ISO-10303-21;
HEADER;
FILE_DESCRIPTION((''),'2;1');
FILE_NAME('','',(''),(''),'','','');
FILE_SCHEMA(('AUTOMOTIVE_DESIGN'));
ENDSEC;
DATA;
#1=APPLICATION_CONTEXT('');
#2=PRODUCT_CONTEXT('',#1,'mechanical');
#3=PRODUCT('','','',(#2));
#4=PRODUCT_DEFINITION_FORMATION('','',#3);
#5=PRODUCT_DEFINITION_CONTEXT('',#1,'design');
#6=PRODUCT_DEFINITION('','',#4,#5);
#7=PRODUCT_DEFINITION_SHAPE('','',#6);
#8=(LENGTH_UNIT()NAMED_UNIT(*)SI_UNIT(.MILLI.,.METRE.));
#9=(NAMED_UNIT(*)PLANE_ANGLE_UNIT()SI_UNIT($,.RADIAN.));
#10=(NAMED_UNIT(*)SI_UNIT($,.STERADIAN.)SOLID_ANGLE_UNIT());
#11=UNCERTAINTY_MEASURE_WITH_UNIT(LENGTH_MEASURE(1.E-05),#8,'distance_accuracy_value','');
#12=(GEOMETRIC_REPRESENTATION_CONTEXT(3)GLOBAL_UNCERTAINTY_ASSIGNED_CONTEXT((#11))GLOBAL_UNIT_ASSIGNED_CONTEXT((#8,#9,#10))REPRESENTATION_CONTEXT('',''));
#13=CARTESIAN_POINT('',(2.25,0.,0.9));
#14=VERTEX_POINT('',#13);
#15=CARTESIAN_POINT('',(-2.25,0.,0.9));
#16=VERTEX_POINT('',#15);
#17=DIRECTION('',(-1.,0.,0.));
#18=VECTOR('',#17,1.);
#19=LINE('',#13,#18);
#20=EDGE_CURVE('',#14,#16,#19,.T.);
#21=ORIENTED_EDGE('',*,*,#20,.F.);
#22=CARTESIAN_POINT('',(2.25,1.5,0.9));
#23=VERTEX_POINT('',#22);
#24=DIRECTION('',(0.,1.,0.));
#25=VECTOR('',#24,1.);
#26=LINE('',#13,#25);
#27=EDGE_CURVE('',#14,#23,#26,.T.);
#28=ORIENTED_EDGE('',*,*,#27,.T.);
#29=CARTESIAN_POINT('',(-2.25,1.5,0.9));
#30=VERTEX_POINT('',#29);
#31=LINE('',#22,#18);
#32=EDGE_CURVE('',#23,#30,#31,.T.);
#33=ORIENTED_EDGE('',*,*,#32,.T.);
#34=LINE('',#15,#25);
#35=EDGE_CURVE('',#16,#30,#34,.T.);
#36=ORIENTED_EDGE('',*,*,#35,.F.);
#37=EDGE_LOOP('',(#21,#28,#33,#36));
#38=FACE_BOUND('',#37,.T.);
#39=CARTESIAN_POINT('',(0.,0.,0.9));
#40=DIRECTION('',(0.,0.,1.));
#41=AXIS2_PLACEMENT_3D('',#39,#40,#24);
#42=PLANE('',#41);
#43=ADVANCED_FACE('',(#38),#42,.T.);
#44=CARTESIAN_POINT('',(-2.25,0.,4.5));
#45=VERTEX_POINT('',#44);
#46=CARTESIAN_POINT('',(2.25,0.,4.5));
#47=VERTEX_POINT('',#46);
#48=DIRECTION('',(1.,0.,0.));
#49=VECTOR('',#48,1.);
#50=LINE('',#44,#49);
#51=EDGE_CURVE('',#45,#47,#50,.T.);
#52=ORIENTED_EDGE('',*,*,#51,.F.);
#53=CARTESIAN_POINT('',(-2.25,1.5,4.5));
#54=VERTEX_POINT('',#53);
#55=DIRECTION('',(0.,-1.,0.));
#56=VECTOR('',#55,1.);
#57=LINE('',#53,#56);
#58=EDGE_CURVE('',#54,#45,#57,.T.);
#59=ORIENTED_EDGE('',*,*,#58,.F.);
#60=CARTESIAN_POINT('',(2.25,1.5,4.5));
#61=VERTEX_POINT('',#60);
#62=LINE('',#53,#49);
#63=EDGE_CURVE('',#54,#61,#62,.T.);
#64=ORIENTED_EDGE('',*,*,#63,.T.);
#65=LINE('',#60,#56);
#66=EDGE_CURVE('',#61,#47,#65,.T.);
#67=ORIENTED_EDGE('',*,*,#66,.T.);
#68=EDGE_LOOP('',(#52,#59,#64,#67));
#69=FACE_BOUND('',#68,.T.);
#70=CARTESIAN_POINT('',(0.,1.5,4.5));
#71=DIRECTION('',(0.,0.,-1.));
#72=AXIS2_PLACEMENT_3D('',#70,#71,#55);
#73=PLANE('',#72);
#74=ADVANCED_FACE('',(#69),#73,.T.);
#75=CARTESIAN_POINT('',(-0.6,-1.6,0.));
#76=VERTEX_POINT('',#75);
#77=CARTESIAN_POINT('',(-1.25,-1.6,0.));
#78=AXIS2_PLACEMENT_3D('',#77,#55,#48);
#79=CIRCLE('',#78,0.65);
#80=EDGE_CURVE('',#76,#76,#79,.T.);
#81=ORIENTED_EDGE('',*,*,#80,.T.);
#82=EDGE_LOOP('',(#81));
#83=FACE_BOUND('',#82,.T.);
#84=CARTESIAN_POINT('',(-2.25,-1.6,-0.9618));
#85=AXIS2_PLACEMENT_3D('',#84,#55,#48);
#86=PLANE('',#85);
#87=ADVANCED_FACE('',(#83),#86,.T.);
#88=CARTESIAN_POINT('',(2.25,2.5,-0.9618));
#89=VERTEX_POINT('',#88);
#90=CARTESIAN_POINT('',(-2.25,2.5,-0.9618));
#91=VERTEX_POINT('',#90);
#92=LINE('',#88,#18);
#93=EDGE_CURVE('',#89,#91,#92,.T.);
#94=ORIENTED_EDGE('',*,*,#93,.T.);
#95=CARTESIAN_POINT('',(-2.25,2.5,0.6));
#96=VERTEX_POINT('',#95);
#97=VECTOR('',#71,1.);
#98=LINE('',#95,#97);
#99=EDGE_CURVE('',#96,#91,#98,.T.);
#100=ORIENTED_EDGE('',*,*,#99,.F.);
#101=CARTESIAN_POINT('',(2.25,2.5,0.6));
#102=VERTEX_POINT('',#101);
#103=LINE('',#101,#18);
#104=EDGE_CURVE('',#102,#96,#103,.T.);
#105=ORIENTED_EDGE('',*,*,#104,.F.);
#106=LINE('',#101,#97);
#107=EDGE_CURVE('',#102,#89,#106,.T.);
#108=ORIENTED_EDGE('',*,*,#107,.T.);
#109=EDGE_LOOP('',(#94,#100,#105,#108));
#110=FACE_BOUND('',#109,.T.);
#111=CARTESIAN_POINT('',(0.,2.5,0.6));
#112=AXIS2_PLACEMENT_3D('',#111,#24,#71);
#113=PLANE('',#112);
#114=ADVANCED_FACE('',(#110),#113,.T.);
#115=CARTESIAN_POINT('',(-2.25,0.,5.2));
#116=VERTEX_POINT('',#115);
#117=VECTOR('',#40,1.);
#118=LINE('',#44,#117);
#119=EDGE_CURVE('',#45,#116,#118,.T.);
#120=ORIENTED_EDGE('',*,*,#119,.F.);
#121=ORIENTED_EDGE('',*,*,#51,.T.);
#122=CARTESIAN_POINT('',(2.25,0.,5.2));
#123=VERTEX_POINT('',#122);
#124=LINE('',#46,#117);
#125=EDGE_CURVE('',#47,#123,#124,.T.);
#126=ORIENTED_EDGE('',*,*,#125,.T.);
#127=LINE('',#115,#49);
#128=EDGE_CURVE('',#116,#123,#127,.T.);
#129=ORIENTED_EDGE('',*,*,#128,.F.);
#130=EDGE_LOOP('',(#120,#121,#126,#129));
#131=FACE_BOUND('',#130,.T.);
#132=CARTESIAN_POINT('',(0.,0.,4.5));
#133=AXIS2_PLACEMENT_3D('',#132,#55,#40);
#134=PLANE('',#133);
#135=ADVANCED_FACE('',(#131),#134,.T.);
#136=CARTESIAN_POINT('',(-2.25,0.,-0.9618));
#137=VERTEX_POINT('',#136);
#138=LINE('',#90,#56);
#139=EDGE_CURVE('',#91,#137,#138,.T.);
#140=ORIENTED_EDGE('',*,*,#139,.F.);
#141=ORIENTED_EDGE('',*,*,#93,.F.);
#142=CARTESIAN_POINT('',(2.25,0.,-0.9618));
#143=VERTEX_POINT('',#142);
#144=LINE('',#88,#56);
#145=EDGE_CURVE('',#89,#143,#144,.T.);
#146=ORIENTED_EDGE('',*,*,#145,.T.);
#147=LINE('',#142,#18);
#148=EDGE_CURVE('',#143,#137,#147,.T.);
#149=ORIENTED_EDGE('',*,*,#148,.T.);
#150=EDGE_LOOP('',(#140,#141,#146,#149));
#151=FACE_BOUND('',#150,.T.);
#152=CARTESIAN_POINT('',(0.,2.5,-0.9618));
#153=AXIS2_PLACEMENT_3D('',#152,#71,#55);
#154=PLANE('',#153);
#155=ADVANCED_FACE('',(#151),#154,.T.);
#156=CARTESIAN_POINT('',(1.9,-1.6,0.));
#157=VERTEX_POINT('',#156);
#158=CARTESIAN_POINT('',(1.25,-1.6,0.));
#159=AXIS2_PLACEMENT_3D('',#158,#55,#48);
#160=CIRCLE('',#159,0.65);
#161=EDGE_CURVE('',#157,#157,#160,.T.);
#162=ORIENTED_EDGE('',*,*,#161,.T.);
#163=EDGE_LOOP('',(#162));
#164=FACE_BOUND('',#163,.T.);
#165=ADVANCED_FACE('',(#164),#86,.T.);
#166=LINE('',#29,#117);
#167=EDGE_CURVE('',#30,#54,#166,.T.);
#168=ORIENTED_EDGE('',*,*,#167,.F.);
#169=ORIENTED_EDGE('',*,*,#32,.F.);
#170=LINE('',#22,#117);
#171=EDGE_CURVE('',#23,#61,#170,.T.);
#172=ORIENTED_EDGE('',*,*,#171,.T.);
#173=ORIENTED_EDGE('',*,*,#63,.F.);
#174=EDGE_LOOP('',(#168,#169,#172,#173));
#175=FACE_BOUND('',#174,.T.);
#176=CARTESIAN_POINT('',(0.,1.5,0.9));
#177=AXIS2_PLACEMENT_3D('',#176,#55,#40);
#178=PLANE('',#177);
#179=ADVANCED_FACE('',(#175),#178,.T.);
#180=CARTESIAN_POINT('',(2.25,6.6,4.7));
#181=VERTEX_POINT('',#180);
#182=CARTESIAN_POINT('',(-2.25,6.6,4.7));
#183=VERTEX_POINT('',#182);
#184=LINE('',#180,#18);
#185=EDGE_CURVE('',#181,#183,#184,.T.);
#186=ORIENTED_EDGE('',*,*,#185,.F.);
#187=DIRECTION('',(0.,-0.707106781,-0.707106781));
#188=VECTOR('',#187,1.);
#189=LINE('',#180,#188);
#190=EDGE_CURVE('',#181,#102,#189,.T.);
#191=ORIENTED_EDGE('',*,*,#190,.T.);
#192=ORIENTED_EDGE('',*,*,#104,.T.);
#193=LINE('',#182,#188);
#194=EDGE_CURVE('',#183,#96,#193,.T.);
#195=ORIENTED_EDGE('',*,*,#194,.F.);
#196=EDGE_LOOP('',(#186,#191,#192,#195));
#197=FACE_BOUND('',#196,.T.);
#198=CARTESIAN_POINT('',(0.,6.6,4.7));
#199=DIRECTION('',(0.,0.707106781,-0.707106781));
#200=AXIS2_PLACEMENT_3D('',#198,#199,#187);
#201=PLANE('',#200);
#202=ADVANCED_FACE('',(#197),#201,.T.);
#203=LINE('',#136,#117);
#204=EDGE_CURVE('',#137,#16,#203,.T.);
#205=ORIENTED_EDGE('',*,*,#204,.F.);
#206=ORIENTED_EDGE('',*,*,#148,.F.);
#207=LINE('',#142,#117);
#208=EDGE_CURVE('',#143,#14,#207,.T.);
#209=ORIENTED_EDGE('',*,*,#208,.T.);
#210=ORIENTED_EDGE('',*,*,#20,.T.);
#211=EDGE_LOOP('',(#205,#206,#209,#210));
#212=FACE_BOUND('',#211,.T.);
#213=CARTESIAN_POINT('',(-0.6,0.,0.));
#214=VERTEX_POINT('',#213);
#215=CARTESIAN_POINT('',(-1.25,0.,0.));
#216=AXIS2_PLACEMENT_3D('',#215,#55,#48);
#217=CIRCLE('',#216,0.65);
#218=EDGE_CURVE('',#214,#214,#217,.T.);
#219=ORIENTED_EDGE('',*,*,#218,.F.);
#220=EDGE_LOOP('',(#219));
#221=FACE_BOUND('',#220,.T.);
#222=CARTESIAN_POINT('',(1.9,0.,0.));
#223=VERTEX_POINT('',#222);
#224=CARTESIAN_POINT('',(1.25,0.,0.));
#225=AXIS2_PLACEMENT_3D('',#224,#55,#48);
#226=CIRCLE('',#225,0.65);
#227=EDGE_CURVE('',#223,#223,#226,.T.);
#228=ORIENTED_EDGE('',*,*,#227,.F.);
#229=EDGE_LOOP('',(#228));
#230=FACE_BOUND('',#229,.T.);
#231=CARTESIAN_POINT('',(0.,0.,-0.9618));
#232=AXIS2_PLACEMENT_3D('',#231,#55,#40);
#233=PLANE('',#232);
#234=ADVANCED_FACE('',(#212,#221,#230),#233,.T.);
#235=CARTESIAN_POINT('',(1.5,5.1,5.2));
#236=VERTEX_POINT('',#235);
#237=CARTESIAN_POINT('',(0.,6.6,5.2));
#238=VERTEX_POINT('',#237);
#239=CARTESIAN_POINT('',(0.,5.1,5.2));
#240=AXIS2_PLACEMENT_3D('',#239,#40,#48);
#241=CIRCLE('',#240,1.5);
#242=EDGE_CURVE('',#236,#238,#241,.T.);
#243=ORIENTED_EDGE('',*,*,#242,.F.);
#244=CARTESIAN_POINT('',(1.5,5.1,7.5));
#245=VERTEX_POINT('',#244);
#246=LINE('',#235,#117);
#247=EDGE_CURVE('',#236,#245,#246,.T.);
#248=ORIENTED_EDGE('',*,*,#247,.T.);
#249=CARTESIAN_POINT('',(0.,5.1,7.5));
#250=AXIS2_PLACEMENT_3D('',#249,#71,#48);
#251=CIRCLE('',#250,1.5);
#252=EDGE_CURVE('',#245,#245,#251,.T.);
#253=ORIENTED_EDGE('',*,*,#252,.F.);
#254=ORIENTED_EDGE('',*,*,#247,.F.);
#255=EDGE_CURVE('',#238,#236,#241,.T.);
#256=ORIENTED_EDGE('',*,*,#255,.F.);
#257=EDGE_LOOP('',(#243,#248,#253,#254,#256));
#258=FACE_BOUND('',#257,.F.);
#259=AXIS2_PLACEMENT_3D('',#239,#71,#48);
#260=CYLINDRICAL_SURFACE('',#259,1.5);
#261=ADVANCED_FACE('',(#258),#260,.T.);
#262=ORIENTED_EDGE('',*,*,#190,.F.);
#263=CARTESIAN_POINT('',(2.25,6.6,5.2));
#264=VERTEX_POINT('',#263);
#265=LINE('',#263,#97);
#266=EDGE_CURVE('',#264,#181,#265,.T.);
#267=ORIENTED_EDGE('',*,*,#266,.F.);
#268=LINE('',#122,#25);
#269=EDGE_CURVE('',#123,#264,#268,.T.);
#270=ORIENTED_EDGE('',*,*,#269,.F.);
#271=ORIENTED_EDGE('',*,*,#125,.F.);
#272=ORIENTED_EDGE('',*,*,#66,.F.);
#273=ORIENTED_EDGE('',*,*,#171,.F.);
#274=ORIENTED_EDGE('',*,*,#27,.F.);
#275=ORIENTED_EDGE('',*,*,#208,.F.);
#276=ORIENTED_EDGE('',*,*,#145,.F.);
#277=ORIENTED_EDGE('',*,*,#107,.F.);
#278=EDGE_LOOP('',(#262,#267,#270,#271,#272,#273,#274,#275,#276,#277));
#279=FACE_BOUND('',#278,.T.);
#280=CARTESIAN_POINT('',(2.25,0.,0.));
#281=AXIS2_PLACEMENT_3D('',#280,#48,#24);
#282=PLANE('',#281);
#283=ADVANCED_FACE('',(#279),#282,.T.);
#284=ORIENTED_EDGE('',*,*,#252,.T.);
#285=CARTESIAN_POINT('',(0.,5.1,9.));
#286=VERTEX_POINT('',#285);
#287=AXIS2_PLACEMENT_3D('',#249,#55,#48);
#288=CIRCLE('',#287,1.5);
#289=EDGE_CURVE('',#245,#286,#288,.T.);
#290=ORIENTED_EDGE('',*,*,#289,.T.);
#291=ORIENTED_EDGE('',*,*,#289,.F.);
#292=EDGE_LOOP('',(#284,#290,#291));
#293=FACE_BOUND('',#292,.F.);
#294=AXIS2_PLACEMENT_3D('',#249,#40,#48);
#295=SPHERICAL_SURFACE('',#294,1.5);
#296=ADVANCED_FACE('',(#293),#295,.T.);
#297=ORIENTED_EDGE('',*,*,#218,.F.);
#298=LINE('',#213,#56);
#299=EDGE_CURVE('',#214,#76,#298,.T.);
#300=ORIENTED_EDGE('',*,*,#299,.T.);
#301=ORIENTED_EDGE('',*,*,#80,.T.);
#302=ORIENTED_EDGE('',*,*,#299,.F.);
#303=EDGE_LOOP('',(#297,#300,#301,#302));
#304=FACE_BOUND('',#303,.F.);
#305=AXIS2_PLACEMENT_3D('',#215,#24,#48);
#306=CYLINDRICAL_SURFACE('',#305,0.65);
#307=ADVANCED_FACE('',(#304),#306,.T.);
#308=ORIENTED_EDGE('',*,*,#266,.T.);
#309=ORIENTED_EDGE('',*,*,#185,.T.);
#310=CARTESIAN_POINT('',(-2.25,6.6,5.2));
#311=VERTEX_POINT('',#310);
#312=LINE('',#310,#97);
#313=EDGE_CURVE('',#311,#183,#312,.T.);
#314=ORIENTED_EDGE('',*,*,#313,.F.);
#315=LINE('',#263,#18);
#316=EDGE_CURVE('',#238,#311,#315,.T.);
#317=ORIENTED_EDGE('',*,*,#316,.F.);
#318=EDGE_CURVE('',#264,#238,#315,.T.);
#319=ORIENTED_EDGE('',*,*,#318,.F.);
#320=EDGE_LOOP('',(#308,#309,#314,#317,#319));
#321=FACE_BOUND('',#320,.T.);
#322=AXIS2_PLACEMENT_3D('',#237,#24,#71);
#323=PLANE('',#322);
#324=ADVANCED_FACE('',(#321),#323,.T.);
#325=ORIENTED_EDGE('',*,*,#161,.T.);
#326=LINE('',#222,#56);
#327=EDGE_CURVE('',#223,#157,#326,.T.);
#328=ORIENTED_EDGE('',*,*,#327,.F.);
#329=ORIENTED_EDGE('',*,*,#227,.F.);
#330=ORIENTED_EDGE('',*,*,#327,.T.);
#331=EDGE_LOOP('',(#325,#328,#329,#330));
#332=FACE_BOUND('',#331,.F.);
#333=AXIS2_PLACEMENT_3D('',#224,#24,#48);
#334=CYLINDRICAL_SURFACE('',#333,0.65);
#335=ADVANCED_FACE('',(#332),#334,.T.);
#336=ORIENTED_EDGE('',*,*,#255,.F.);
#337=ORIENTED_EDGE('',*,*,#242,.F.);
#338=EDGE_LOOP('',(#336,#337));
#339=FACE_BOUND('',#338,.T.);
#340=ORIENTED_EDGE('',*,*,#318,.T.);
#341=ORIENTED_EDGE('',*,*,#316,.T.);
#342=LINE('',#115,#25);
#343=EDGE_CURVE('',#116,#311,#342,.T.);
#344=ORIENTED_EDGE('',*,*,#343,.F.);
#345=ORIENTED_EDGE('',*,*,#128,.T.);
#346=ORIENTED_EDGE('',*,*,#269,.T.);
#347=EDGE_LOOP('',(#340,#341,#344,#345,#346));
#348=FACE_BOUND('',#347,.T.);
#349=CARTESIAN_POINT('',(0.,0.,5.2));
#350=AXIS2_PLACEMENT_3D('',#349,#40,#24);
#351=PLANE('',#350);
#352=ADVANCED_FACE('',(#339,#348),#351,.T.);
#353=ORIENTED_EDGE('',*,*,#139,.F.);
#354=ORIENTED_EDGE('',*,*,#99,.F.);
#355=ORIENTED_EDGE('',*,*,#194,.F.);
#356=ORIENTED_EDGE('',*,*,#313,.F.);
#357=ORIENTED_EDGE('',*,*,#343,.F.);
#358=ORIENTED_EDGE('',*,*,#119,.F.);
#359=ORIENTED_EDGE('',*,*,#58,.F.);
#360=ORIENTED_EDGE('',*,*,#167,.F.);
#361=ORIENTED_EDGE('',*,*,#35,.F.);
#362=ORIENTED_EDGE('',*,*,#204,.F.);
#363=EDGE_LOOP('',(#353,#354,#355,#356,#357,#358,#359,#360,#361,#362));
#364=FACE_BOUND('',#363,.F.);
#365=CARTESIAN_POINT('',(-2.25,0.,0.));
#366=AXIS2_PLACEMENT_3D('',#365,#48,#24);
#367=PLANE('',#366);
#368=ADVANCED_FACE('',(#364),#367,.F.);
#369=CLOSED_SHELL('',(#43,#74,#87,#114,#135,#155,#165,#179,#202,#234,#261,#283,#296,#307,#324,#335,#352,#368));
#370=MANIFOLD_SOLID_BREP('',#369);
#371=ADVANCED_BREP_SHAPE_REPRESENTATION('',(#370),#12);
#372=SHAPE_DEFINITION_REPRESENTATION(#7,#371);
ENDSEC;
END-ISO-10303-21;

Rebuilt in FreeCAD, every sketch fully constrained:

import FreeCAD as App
import Part
import Sketcher
Q = App.Units.Quantity


def edges_at(feature, points):
    """Names of the edges that pass closest to the given points."""
    edges = feature.Shape.Edges
    near = lambda p: min(range(len(edges)), key=lambda i: edges[i].distToShape(Part.Vertex(*p))[0])
    return sorted({f"Edge{near(p) + 1}" for p in points})


def add_polygon(sketch, points):
    """Adds a closed chain of lines whose ends are joined by coincident constraints."""
    first, n = sketch.GeometryCount, len(points)
    for a, b in zip(points, points[1:] + points[:1]):
        sketch.addGeometry(Part.LineSegment(App.Vector(*a, 0), App.Vector(*b, 0)), False)
    for i in range(n):
        sketch.addConstraint(Sketcher.Constraint("Coincident", first + i, 2, first + (i + 1) % n, 1))

doc = App.newDocument("Part")
params = doc.addObject("Spreadsheet::Sheet", "Params")
for row, (alias, value) in enumerate([
    ("sketch1_width", "6.6 mm"),
    ("sketch1_width2", "1.5 mm"),
    ("sketch1_height", "3.6 mm"),
    ("sketch1_height2", "0.5 mm"),
    ("sketch1_height3", "0.7 mm"),
    ("pad1_length", "4.5 mm"),
    ("sketch2_diameter", "3 mm"),
    ("pad2_length", "3.8 mm"),
    ("fillet_radius", "1.5 mm"),
    ("sketch3_diameter", "1.3 mm"),
    ("pad3_length", "1.6 mm"),
], start=1):
    params.set(f"A{row}", alias)
    params.set(f"B{row}", "=" + value)
    params.setAlias(f"B{row}", alias)

body = doc.addObject("PartDesign::Body", "Body")

# Sketch on YZ plane
sketch1 = body.newObject("Sketcher::SketchObject", "Sketch")
sketch1.AttachmentSupport = (doc.getObject("YZ_Plane"), [""])
sketch1.MapMode = "FlatFace"
add_polygon(sketch1, [(6.6, 5.2), (0, 5.2), (0, 4.5), (1.5, 4.5), (1.5, 0.9), (0, 0.9), (0, -1), (2.5, -1), (2.5, 0.6), (6.6, 4.7)])  # lines 0-9
sketch1.addConstraint([
    Sketcher.Constraint("Horizontal", 0),
    Sketcher.Constraint("Vertical", 1),
    Sketcher.Constraint("Horizontal", 2),
    Sketcher.Constraint("Vertical", 3),
    Sketcher.Constraint("Horizontal", 4),
    Sketcher.Constraint("Vertical", 5),
    Sketcher.Constraint("Horizontal", 6),
    Sketcher.Constraint("Vertical", 7),
    Sketcher.Constraint("Vertical", 9),
    Sketcher.Constraint("PointOnObject", 0, 2, -2),
    Sketcher.Constraint("PointOnObject", 4, 2, -2),
    Sketcher.Constraint("Angle", 8, Q("45 deg")),
    Sketcher.Constraint("DistanceX", 0, 2, 0, 1, Q("6.6 mm")),
    Sketcher.Constraint("DistanceX", 2, 1, 2, 2, Q("1.5 mm")),
    Sketcher.Constraint("DistanceY", 3, 2, 3, 1, Q("3.6 mm")),
    Sketcher.Constraint("DistanceY", 9, 1, 9, 2, Q("0.5 mm")),
    Sketcher.Constraint("DistanceX", 3, 2, 6, 2, Q("1 mm")),
    Sketcher.Constraint("DistanceY", -1, 1, 0, 2, Q("5.2 mm")),
    Sketcher.Constraint("DistanceY", 1, 2, 1, 1, Q("0.7 mm")),
    Sketcher.Constraint("DistanceY", 5, 2, 5, 1, Q("1.8618 mm")),
])
sketch1.setExpression("Constraints[22]", "Params.sketch1_width")
sketch1.setExpression("Constraints[23]", "Params.sketch1_width2")
sketch1.setExpression("Constraints[24]", "Params.sketch1_height")
sketch1.setExpression("Constraints[25]", "Params.sketch1_height2")
sketch1.setExpression("Constraints[28]", "Params.sketch1_height3")
pad1 = body.newObject("PartDesign::Pad", "Pad")
pad1.Profile = sketch1
pad1.setExpression("Length", "Params.pad1_length")
pad1.Midplane = True

# Sketch on XY plane
sketch2 = body.newObject("Sketcher::SketchObject", "Sketch001")
sketch2.AttachmentSupport = (doc.getObject("XY_Plane"), [""])
sketch2.MapMode = "FlatFace"
sketch2.AttachmentOffset = App.Placement(App.Vector(0, 0, 5.2), App.Rotation())
sketch2.addGeometry(Part.Circle(App.Vector(0, 5.1, 0), App.Vector(0, 0, 1), 1.5), False)
sketch2.addConstraint([
    Sketcher.Constraint("PointOnObject", 0, 3, -2),
    Sketcher.Constraint("Diameter", 0, Q("3 mm")),
    Sketcher.Constraint("DistanceY", -1, 1, 0, 3, Q("5.1 mm")),
])
sketch2.setExpression("Constraints[1]", "Params.sketch2_diameter")
pad2 = body.newObject("PartDesign::Pad", "Pad001")
pad2.Profile = sketch2
pad2.setExpression("Length", "Params.pad2_length")
doc.recompute()

fillet = body.newObject("PartDesign::Fillet", "Fillet")
fillet.Base = (pad2, edges_at(pad2, [(-1.5, 5.1, 9)]))
fillet.setExpression("Radius", "Params.fillet_radius")

# Sketch on XZ plane
sketch3 = body.newObject("Sketcher::SketchObject", "Sketch002")
sketch3.AttachmentSupport = (doc.getObject("XZ_Plane"), [""])
sketch3.MapMode = "FlatFace"
sketch3.addGeometry([
    Part.Circle(App.Vector(-1.2, 0, 0), App.Vector(0, 0, 1), 0.7),
    Part.Circle(App.Vector(1.2, 0, 0), App.Vector(0, 0, 1), 0.7),
], False)
sketch3.addConstraint([
    Sketcher.Constraint("Equal", 0, 1),
    Sketcher.Constraint("Symmetric", 0, 3, 1, 3, -1, 1),
    Sketcher.Constraint("PointOnObject", 0, 3, -1),
    Sketcher.Constraint("Diameter", 0, Q("1.3 mm")),
    Sketcher.Constraint("DistanceX", 0, 3, -1, 1, Q("1.25 mm")),
])
sketch3.setExpression("Constraints[3]", "Params.sketch3_diameter")
pad3 = body.newObject("PartDesign::Pad", "Pad002")
pad3.Profile = sketch3
pad3.setExpression("Length", "Params.pad3_length")

doc.recompute()
